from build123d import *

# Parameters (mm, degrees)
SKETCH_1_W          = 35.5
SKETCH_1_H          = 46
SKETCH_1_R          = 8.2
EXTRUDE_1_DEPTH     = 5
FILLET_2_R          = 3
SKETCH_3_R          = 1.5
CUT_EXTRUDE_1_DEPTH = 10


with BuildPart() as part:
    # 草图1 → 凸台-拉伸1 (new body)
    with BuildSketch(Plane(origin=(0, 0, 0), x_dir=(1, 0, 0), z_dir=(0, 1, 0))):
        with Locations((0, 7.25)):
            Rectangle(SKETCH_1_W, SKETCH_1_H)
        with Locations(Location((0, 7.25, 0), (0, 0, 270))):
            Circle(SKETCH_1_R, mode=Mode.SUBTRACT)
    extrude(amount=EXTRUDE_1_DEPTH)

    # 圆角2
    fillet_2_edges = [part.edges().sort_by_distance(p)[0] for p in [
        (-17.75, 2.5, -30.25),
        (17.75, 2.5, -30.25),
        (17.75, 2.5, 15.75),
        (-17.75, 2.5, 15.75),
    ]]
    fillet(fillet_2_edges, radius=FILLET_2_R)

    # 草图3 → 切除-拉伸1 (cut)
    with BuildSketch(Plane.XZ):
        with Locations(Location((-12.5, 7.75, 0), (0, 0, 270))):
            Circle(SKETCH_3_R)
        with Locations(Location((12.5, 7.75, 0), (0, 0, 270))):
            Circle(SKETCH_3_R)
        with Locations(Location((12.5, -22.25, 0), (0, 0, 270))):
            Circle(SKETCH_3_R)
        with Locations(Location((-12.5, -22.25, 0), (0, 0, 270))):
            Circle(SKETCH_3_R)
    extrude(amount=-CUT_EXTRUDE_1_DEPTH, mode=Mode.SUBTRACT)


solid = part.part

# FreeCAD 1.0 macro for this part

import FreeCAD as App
import Part
import Sketcher

V = App.Vector


def edges_at(feature, points):
    """Names of the edges that pass closest to the given points."""
    edges = feature.Shape.Edges
    near = lambda p: min(range(len(edges)), key=lambda i: edges[i].distToShape(Part.Vertex(*p))[0])
    return sorted({f"Edge{near(p) + 1}" for p in points})


def add_polygon(sketch, points):
    """Adds a closed chain of lines whose ends are joined by coincident constraints."""
    first, n = sketch.GeometryCount, len(points)
    for a, b in zip(points, points[1:] + points[:1]):
        sketch.addGeometry(Part.LineSegment(App.Vector(*a, 0), App.Vector(*b, 0)), False)
    for i in range(n):
        sketch.addConstraint(Sketcher.Constraint("Coincident", first + i, 2, first + (i + 1) % n, 1))

doc = App.newDocument("Part")
params = doc.addObject("Spreadsheet::Sheet", "Params")
for row, (alias, value) in enumerate([
    ("sketch1_diameter", "16.4 mm"),
    ("sketch1_height", "46 mm"),
    ("sketch1_width", "35.5 mm"),
    ("pad1_length", "5 mm"),
    ("fillet_radius", "3 mm"),
    ("sketch2_diameter", "3 mm"),
    ("pocket1_length", "10 mm"),
], start=1):
    params.set(f"A{row}", alias)
    params.set(f"B{row}", "=" + value)
    params.setAlias(f"B{row}", alias)

body = doc.addObject("PartDesign::Body", "Body")

sketch1 = body.newObject("Sketcher::SketchObject", "Sketch")
sketch1.AttachmentSupport = (doc.getObject("XZ_Plane"), [""])
sketch1.MapMode = "FlatFace"
add_polygon(sketch1, [(-17.75, -30.25), (-17.75, 15.75), (17.75, 15.75), (17.75, -30.25)])
sketch1.addGeometry(Part.Circle(V(0, -7.25, 0), V(0, 0, 1), 8.2), False)
sketch1.addConstraint([
    Sketcher.Constraint("Vertical", 0),
    Sketcher.Constraint("Horizontal", 1),
    Sketcher.Constraint("Vertical", 2),
    Sketcher.Constraint("Horizontal", 3),
    Sketcher.Constraint("PointOnObject", 4, 3, -2),
    Sketcher.Constraint("Diameter", 4, 16.4),
    Sketcher.Constraint("DistanceY", 0, 1, 0, 2, 46.0),
    Sketcher.Constraint("DistanceX", 1, 1, 1, 2, 35.5),
    Sketcher.Constraint("DistanceY", 4, 3, 0, 2, 23.0),
    Sketcher.Constraint("DistanceY", 4, 3, -1, 1, 7.25),
    Sketcher.Constraint("DistanceX", 0, 2, -1, 1, 17.75),
])
sketch1.setExpression("Constraints[9]", "Params.sketch1_diameter")
sketch1.setExpression("Constraints[10]", "Params.sketch1_height")
sketch1.setExpression("Constraints[11]", "Params.sketch1_width")
pad1 = body.newObject("PartDesign::Pad", "Pad")
pad1.Profile = sketch1
pad1.setExpression("Length", "Params.pad1_length")
pad1.Reversed = True
doc.recompute()

fillet = body.newObject("PartDesign::Fillet", "Fillet")
fillet.Base = (pad1, edges_at(pad1, [
    (-17.75, 2.5, -30.25),
    (17.75, 2.5, -30.25),
    (17.75, 2.5, 15.75),
    (-17.75, 2.5, 15.75),
]))
fillet.setExpression("Radius", "Params.fillet_radius")

sketch2 = body.newObject("Sketcher::SketchObject", "Sketch001")
sketch2.AttachmentSupport = (doc.getObject("XZ_Plane"), [""])
sketch2.MapMode = "FlatFace"
sketch2.addGeometry([
    Part.Circle(V(-12.5, 7.75, 0), V(0, 0, 1), 1.5),
    Part.Circle(V(12.5, 7.75, 0), V(0, 0, 1), 1.5),
    Part.Circle(V(12.5, -22.25, 0), V(0, 0, 1), 1.5),
    Part.Circle(V(-12.5, -22.25, 0), V(0, 0, 1), 1.5),
], False)
sketch2.addConstraint([
    Sketcher.Constraint("Equal", 0, 1),
    Sketcher.Constraint("Equal", 1, 2),
    Sketcher.Constraint("Equal", 2, 3),
    Sketcher.Constraint("Symmetric", 0, 3, 1, 3, -2),
    Sketcher.Constraint("Symmetric", 2, 3, 3, 3, -2),
    Sketcher.Constraint("Vertical", 1, 3, 2, 3),
    Sketcher.Constraint("Diameter", 0, 3.0),
    Sketcher.Constraint("DistanceX", 0, 3, 1, 3, 25.0),
    Sketcher.Constraint("DistanceY", 2, 3, 1, 3, 30.0),
    Sketcher.Constraint("DistanceY", -1, 1, 0, 3, 7.75),
])
sketch2.setExpression("Constraints[6]", "Params.sketch2_diameter")
pocket1 = body.newObject("PartDesign::Pocket", "Pocket")
pocket1.Profile = sketch2
pocket1.setExpression("Length", "Params.pocket1_length")

doc.recompute()
